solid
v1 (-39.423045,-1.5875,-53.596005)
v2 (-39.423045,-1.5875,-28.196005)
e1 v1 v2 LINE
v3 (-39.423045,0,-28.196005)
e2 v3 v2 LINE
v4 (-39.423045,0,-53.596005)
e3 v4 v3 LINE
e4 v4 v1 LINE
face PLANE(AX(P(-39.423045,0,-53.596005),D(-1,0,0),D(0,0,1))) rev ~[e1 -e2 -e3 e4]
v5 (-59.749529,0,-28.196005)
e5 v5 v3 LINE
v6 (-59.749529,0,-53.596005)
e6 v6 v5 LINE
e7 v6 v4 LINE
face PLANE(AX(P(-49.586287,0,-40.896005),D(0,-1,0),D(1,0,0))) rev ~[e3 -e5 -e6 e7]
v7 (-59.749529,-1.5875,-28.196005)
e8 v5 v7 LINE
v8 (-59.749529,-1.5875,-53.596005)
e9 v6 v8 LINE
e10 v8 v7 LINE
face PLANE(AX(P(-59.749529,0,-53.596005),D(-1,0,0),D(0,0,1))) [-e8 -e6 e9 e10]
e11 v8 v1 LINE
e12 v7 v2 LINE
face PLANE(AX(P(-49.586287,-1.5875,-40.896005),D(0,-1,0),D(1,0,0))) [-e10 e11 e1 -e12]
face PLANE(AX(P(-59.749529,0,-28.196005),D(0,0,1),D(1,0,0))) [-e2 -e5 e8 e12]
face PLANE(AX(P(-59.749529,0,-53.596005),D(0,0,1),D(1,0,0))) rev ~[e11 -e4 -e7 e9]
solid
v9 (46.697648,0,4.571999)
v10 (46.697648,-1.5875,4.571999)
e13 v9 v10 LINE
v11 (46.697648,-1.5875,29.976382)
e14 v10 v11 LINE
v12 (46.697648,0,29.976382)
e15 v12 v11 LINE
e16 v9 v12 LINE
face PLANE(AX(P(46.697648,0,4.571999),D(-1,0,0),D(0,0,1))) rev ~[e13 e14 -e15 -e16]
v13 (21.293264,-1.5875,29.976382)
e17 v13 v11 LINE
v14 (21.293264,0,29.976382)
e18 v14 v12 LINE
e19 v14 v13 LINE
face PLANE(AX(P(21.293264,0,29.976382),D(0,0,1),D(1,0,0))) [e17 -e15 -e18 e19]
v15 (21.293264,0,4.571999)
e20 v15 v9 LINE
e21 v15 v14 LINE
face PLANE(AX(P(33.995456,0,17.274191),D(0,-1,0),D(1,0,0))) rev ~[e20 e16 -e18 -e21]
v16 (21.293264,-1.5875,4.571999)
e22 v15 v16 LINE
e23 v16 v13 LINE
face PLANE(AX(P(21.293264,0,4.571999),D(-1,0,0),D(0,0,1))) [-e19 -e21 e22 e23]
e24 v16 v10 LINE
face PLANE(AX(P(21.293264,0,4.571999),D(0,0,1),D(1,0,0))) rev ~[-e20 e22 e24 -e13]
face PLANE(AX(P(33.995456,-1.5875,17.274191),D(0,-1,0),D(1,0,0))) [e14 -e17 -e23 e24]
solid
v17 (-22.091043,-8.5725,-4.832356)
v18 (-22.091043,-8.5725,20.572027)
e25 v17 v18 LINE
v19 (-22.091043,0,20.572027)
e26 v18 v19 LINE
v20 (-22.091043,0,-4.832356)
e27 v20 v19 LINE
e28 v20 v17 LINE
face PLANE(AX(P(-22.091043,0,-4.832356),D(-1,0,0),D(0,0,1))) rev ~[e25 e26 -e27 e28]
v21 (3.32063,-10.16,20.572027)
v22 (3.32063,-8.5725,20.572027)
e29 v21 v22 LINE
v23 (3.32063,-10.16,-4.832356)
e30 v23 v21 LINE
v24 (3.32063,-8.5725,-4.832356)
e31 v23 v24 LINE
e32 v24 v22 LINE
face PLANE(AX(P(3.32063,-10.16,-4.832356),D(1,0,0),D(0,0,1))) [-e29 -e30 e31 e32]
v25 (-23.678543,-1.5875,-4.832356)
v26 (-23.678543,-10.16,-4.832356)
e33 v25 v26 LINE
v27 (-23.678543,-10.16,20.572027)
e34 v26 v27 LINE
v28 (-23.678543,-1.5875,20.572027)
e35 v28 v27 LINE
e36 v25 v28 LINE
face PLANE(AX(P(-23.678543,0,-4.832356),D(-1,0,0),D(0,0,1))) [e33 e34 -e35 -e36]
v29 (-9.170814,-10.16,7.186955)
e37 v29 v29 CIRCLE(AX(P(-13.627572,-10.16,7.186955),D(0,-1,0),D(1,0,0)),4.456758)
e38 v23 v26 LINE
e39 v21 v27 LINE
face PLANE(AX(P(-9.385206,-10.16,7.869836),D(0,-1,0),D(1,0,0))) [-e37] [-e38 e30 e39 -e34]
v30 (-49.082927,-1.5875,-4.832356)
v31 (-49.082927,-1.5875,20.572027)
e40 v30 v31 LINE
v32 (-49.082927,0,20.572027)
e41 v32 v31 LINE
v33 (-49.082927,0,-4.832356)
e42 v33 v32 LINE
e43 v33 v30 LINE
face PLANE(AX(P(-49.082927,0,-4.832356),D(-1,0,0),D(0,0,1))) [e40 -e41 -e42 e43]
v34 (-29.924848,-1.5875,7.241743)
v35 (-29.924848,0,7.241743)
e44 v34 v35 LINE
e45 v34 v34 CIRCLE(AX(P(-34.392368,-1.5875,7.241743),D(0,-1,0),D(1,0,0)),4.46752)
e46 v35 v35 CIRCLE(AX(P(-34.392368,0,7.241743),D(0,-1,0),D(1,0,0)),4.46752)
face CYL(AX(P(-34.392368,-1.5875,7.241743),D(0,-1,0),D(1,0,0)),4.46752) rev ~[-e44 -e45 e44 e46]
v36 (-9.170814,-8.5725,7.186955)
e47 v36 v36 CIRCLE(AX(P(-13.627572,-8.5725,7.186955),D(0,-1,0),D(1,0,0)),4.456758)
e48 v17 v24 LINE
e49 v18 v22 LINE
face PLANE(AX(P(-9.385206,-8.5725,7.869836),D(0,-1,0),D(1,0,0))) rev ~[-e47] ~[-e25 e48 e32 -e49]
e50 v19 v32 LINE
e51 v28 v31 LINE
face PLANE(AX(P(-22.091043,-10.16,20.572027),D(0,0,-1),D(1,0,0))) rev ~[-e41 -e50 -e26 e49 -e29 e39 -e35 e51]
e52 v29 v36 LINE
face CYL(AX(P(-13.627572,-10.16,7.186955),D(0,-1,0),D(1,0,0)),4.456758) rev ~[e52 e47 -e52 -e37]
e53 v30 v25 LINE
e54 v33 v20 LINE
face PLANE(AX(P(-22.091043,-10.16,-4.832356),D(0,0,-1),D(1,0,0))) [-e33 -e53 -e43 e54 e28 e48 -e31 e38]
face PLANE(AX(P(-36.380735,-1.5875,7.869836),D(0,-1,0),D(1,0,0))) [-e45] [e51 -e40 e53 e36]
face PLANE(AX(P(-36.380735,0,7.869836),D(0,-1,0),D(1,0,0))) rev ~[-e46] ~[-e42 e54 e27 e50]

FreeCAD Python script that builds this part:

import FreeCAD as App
import Part
import Sketcher
from FreeCAD import Vector
Q = App.Units.Quantity

doc = App.newDocument("Part")
body = doc.addObject("PartDesign::Body", "Body")

sketch1 = body.newObject("Sketcher::SketchObject", "Sketch")
sketch1.AttachmentSupport = (doc.getObject("XZ_Plane"), [""])
sketch1.MapMode = "FlatFace"
sketch1.addGeometry([
    Part.LineSegment(Vector(-23.678543, 20.572027, 0), Vector(-23.678543, -4.832356, 0)),
    Part.LineSegment(Vector(-23.678543, -4.832356, 0), Vector(-22.091043, -4.832356, 0)),
    Part.LineSegment(Vector(-22.091043, -4.832356, 0), Vector(-22.091043, 20.572027, 0)),
    Part.LineSegment(Vector(-22.091043, 20.572027, 0), Vector(-23.678543, 20.572027, 0)),
], False)
sketch1.addConstraint([
    Sketcher.Constraint("Coincident", 0, 2, 1, 1),
    Sketcher.Constraint("Coincident", 1, 2, 2, 1),
    Sketcher.Constraint("Coincident", 2, 2, 3, 1),
    Sketcher.Constraint("Coincident", 3, 2, 0, 1),
    Sketcher.Constraint("Vertical", 0),
    Sketcher.Constraint("Horizontal", 1),
    Sketcher.Constraint("Vertical", 2),
    Sketcher.Constraint("Horizontal", 3),
    Sketcher.Constraint("DistanceX", 1, 1, 1, 2, Q("0.0625 in")),
    Sketcher.Constraint("DistanceY", 0, 2, 0, 1, Q("25.404383 mm")),
    Sketcher.Constraint("DistanceX", 0, 2, -1, 1, Q("23.678543 mm")),
    Sketcher.Constraint("DistanceY", 0, 2, -1, 1, Q("4.832356 mm")),
])
pad1 = body.newObject("PartDesign::Pad", "Pad")
pad1.Profile = sketch1
pad1.Length = Q("0.4 in")

sketch2 = body.newObject("Sketcher::SketchObject", "Sketch001")
sketch2.AttachmentSupport = (doc.getObject("XZ_Plane"), [""])
sketch2.MapMode = "FlatFace"
sketch2.addGeometry([
    Part.LineSegment(Vector(-49.082927, 20.572027, 0), Vector(-49.082927, -4.832356, 0)),
    Part.LineSegment(Vector(-49.082927, -4.832356, 0), Vector(-22.091043, -4.832356, 0)),
    Part.LineSegment(Vector(-22.091043, -4.832356, 0), Vector(-22.091043, 20.572027, 0)),
    Part.LineSegment(Vector(-22.091043, 20.572027, 0), Vector(-49.082927, 20.572027, 0)),
], False)
sketch2.addConstraint([
    Sketcher.Constraint("Coincident", 0, 2, 1, 1),
    Sketcher.Constraint("Coincident", 1, 2, 2, 1),
    Sketcher.Constraint("Coincident", 2, 2, 3, 1),
    Sketcher.Constraint("Coincident", 3, 2, 0, 1),
    Sketcher.Constraint("Vertical", 0),
    Sketcher.Constraint("Horizontal", 1),
    Sketcher.Constraint("Vertical", 2),
    Sketcher.Constraint("Horizontal", 3),
    Sketcher.Constraint("DistanceX", 1, 1, 1, 2, Q("26.991884 mm")),
    Sketcher.Constraint("DistanceY", 0, 2, 0, 1, Q("25.404383 mm")),
    Sketcher.Constraint("DistanceX", 0, 2, -1, 1, Q("49.082927 mm")),
    Sketcher.Constraint("DistanceY", 0, 2, -1, 1, Q("4.832356 mm")),
])
pad2 = body.newObject("PartDesign::Pad", "Pad001")
pad2.Profile = sketch2
pad2.Length = Q("0.0625 in")

sketch3 = body.newObject("Sketcher::SketchObject", "Sketch002")
sketch3.AttachmentSupport = (doc.getObject("XZ_Plane"), [""])
sketch3.MapMode = "FlatFace"
sketch3.AttachmentOffset = App.Placement(Vector(0, 0, 0.4 * 25.4), App.Rotation())
sketch3.addGeometry([
    Part.LineSegment(Vector(-22.091043, 20.572027, 0), Vector(-22.091043, -4.832356, 0)),
    Part.LineSegment(Vector(-22.091043, -4.832356, 0), Vector(3.32063, -4.832356, 0)),
    Part.LineSegment(Vector(3.32063, -4.832356, 0), Vector(3.32063, 20.572027, 0)),
    Part.LineSegment(Vector(3.32063, 20.572027, 0), Vector(-22.091043, 20.572027, 0)),
], False)
sketch3.addConstraint([
    Sketcher.Constraint("Coincident", 0, 2, 1, 1),
    Sketcher.Constraint("Coincident", 1, 2, 2, 1),
    Sketcher.Constraint("Coincident", 2, 2, 3, 1),
    Sketcher.Constraint("Coincident", 3, 2, 0, 1),
    Sketcher.Constraint("Vertical", 0),
    Sketcher.Constraint("Horizontal", 1),
    Sketcher.Constraint("Vertical", 2),
    Sketcher.Constraint("Horizontal", 3),
    Sketcher.Constraint("DistanceX", 1, 1, 1, 2, Q("25.411673 mm")),
    Sketcher.Constraint("DistanceY", 0, 2, 0, 1, Q("25.404383 mm")),
    Sketcher.Constraint("DistanceX", -1, 1, 1, 2, Q("3.32063 mm")),
    Sketcher.Constraint("DistanceY", 0, 2, -1, 1, Q("4.832356 mm")),
])
pad3 = body.newObject("PartDesign::Pad", "Pad002")
pad3.Profile = sketch3
pad3.Length = Q("0.0625 in")
pad3.Reversed = True

sketch4 = body.newObject("Sketcher::SketchObject", "Sketch003")
sketch4.AttachmentSupport = (doc.getObject("XZ_Plane"), [""])
sketch4.MapMode = "FlatFace"
sketch4.AttachmentOffset = App.Placement(Vector(0, 0, 0.4 * 25.4), App.Rotation())
sketch4.addGeometry(Part.Circle(Vector(-13.627572, 7.186955, 0), Vector(0, 0, 1), 4.456758), False)
sketch4.addConstraint([
    Sketcher.Constraint("Diameter", 0, Q("8.913515 mm")),
    Sketcher.Constraint("DistanceX", 0, 3, -1, 1, Q("13.627572 mm")),
    Sketcher.Constraint("DistanceY", -1, 1, 0, 3, Q("7.186955 mm")),
])
pocket1 = body.newObject("PartDesign::Pocket", "Pocket")
pocket1.Profile = sketch4
pocket1.Length = Q("1 in")

sketch5 = body.newObject("Sketcher::SketchObject", "Sketch004")
sketch5.AttachmentSupport = (doc.getObject("XZ_Plane"), [""])
sketch5.MapMode = "FlatFace"
sketch5.AttachmentOffset = App.Placement(Vector(0, 0, 0.0625 * 25.4), App.Rotation())
sketch5.addGeometry(Part.Circle(Vector(-34.392368, 7.241743, 0), Vector(0, 0, 1), 4.46752), False)
sketch5.addConstraint([
    Sketcher.Constraint("Diameter", 0, Q("8.93504 mm")),
    Sketcher.Constraint("DistanceX", 0, 3, -1, 1, Q("34.392368 mm")),
    Sketcher.Constraint("DistanceY", -1, 1, 0, 3, Q("7.241743 mm")),
])
pocket2 = body.newObject("PartDesign::Pocket", "Pocket001")
pocket2.Profile = sketch5
pocket2.Length = Q("1 in")
body2 = doc.addObject("PartDesign::Body", "Body001")

sketch6 = body2.newObject("Sketcher::SketchObject", "Sketch005")
sketch6.AttachmentSupport = (doc.getObject("XZ_Plane001"), [""])
sketch6.MapMode = "FlatFace"
sketch6.addGeometry([
    Part.LineSegment(Vector(21.293264, 29.976382, 0), Vector(21.293264, 4.571999, 0)),
    Part.LineSegment(Vector(21.293264, 4.571999, 0), Vector(46.697648, 4.571999, 0)),
    Part.LineSegment(Vector(46.697648, 4.571999, 0), Vector(46.697648, 29.976382, 0)),
    Part.LineSegment(Vector(46.697648, 29.976382, 0), Vector(21.293264, 29.976382, 0)),
], False)
sketch6.addConstraint([
    Sketcher.Constraint("Coincident", 0, 2, 1, 1),
    Sketcher.Constraint("Coincident", 1, 2, 2, 1),
    Sketcher.Constraint("Coincident", 2, 2, 3, 1),
    Sketcher.Constraint("Coincident", 3, 2, 0, 1),
    Sketcher.Constraint("Vertical", 0),
    Sketcher.Constraint("Horizontal", 1),
    Sketcher.Constraint("Vertical", 2),
    Sketcher.Constraint("Horizontal", 3),
    Sketcher.Constraint("Equal", 3, 0),
    Sketcher.Constraint("DistanceY", -1, 1, 0, 2, Q("0.18 in")),
    Sketcher.Constraint("DistanceX", 1, 1, 1, 2, Q("25.404384 mm")),
    Sketcher.Constraint("DistanceX", -1, 1, 1, 2, Q("46.697648 mm")),
])
pad4 = body2.newObject("PartDesign::Pad", "Pad003")
pad4.Profile = sketch6
pad4.Length = Q("0.0625 in")
body3 = doc.addObject("PartDesign::Body", "Body002")

sketch7 = body3.newObject("Sketcher::SketchObject", "Sketch006")
sketch7.AttachmentSupport = (doc.getObject("XZ_Plane002"), [""])
sketch7.MapMode = "FlatFace"
sketch7.addGeometry([
    Part.LineSegment(Vector(-59.749529, -28.196005, 0), Vector(-59.749529, -53.596005, 0)),
    Part.LineSegment(Vector(-59.749529, -53.596005, 0), Vector(-39.423045, -53.596005, 0)),
    Part.LineSegment(Vector(-39.423045, -53.596005, 0), Vector(-39.423045, -28.196005, 0)),
    Part.LineSegment(Vector(-39.423045, -28.196005, 0), Vector(-59.749529, -28.196005, 0)),
], False)
sketch7.addConstraint([
    Sketcher.Constraint("Coincident", 0, 2, 1, 1),
    Sketcher.Constraint("Coincident", 1, 2, 2, 1),
    Sketcher.Constraint("Coincident", 2, 2, 3, 1),
    Sketcher.Constraint("Coincident", 3, 2, 0, 1),
    Sketcher.Constraint("Vertical", 0),
    Sketcher.Constraint("Horizontal", 1),
    Sketcher.Constraint("Vertical", 2),
    Sketcher.Constraint("Horizontal", 3),
    Sketcher.Constraint("DistanceY", 0, 2, 0, 1, Q("1 in")),
    Sketcher.Constraint("DistanceX", 1, 1, 1, 2, Q("20.326484 mm")),
    Sketcher.Constraint("DistanceX", 0, 2, -1, 1, Q("59.749529 mm")),
    Sketcher.Constraint("DistanceY", 0, 2, -1, 1, Q("53.596005 mm")),
])
pad5 = body3.newObject("PartDesign::Pad", "Pad004")
pad5.Profile = sketch7
pad5.Length = Q("0.0625 in")

doc.recompute()
